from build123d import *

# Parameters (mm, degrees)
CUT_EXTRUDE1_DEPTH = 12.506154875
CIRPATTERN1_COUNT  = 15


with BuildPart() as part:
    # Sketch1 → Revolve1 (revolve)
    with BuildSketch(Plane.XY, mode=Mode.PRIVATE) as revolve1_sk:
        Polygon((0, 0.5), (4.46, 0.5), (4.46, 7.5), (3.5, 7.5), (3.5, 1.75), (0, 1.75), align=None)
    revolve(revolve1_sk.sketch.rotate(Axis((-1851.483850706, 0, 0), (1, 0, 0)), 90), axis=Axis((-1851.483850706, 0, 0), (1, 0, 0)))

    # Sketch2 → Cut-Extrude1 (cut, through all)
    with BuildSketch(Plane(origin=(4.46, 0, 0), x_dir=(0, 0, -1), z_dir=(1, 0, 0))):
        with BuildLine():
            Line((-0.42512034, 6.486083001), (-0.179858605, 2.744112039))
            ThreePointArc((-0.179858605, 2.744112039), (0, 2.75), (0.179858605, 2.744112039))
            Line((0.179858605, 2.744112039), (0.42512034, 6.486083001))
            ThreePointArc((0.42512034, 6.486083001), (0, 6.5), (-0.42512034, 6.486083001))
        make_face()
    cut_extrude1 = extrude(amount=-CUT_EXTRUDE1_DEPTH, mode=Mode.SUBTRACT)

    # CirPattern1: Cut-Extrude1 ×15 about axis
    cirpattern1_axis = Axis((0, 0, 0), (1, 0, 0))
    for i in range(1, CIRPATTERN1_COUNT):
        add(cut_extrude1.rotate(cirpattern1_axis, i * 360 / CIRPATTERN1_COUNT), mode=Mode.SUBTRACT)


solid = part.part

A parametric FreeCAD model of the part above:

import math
import FreeCAD as App
import Part
import Sketcher
from FreeCAD import Vector
Q = App.Units.Quantity


def add_polygon(sketch, points):
    """Adds a closed chain of lines whose ends are joined by coincident constraints."""
    first, n = sketch.GeometryCount, len(points)
    for a, b in zip(points, points[1:] + points[:1]):
        sketch.addGeometry(Part.LineSegment(App.Vector(*a, 0), App.Vector(*b, 0)), False)
    for i in range(n):
        sketch.addConstraint(Sketcher.Constraint("Coincident", first + i, 2, first + (i + 1) % n, 1))

doc = App.newDocument("Part")
body = doc.addObject("PartDesign::Body", "Body")

# Sketch on XY plane
sketch1 = body.newObject("Sketcher::SketchObject", "Sketch")
sketch1.AttachmentSupport = (doc.getObject("XY_Plane"), [""])
sketch1.MapMode = "FlatFace"
add_polygon(sketch1, [(0, 0.5), (4.5, 0.5), (4.5, 7.5), (3.5, 7.5), (3.5, 1.8), (0, 1.8)])  # lines 0-5
sketch1.addConstraint([
    Sketcher.Constraint("Horizontal", 0),
    Sketcher.Constraint("Vertical", 1),
    Sketcher.Constraint("Horizontal", 2),
    Sketcher.Constraint("Vertical", 3),
    Sketcher.Constraint("Horizontal", 4),
    Sketcher.Constraint("Vertical", 5),
    Sketcher.Constraint("PointOnObject", 4, 2, -2),
    Sketcher.Constraint("DistanceY", 1, 1, 1, 2, Q("7 mm")),
    Sketcher.Constraint("DistanceX", 4, 2, 4, 1, Q("3.5 mm")),
    Sketcher.Constraint("DistanceX", 0, 1, 0, 2, Q("4.46 mm")),
    Sketcher.Constraint("DistanceY", 3, 2, 3, 1, Q("5.75 mm")),
    Sketcher.Constraint("DistanceY", -1, 1, 0, 2, Q("0.5 mm")),
])
revolution = body.newObject("PartDesign::Revolution", "Revolution")
revolution.Profile = sketch1
revolution.ReferenceAxis = (sketch1, ["H_Axis"])
revolution.Angle = 360

# Sketch on YZ plane
sketch2 = body.newObject("Sketcher::SketchObject", "Sketch001")
sketch2.AttachmentSupport = (doc.getObject("YZ_Plane"), [""])
sketch2.MapMode = "FlatFace"
sketch2.AttachmentOffset = App.Placement(Vector(0, 0, 4.46), App.Rotation())
sketch2.addGeometry([
    Part.LineSegment(Vector(6.49, 0.43, 0), Vector(2.74, 0.18, 0)),
    Part.ArcOfCircle(Part.Circle(Vector(0, 0, 0), Vector(0, 0, 1), 2.75), math.radians(-3.75), math.radians(3.75)),
    Part.LineSegment(Vector(2.74, -0.18, 0), Vector(6.49, -0.43, 0)),
    Part.ArcOfCircle(Part.Circle(Vector(0, 0, 0), Vector(0, 0, 1), 6.5), math.radians(-3.75), math.radians(3.75)),
], False)
sketch2.addConstraint([
    Sketcher.Constraint("Coincident", 0, 2, 1, 2),
    Sketcher.Constraint("Coincident", 1, 1, 2, 1),
    Sketcher.Constraint("Coincident", 2, 2, 3, 1),
    Sketcher.Constraint("Coincident", 3, 2, 0, 1),
    Sketcher.Constraint("Coincident", 1, 3, -1, 1),
    Sketcher.Constraint("Coincident", 3, 3, -1, 1),
    Sketcher.Constraint("Vertical", 0, 2, 1, 1),
    Sketcher.Constraint("Vertical", 2, 2, 3, 2),
    Sketcher.Constraint("Radius", 3, Q("6.5 mm")),
    Sketcher.Constraint("Radius", 1, Q("2.75 mm")),
    Sketcher.Constraint("Angle", 0, Q("-176.25 deg")),
    Sketcher.Constraint("DistanceY", -1, 1, 0, 2, Q("0.179859 mm")),
])
pocket1 = body.newObject("PartDesign::Pocket", "Pocket")
pocket1.Profile = sketch2
pocket1.Type = "ThroughAll"
doc.recompute()

polarpattern = body.newObject("PartDesign::PolarPattern", "PolarPattern")
polarpattern.Originals = [pocket1]
polarpattern.Axis = (doc.getObject("X_Axis"), [""])
polarpattern.Angle = 360
polarpattern.Occurrences = 15
body.Tip = polarpattern

doc.recompute()
